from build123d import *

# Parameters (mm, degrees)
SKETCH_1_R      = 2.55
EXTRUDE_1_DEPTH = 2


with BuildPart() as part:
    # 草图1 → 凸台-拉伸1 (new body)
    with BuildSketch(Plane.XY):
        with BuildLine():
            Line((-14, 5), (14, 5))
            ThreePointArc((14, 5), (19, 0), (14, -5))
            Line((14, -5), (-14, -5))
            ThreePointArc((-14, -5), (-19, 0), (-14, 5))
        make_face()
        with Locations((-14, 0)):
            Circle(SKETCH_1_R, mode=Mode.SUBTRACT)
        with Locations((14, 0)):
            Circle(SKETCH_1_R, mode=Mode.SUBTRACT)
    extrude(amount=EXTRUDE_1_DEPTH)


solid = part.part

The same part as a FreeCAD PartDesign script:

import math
import FreeCAD as App
import Part
import Sketcher
from FreeCAD import Vector

doc = App.newDocument("Part")
body = doc.addObject("PartDesign::Body", "Body")

# Sketch on XY plane
sketch1 = body.newObject("Sketcher::SketchObject", "Sketch")
sketch1.AttachmentSupport = (doc.getObject("XY_Plane"), [""])
sketch1.MapMode = "FlatFace"
sketch1.addGeometry(Part.LineSegment(Vector(14, 5, 0), Vector(-14, 5, 0)), False)
sketch1.addGeometry(Part.ArcOfCircle(Part.Circle(Vector(-14, 0, 0), Vector(0, 0, 1), 5), math.radians(90), math.radians(270)), False)
sketch1.addGeometry(Part.LineSegment(Vector(-14, -5, 0), Vector(14, -5, 0)), False)
sketch1.addGeometry(Part.ArcOfCircle(Part.Circle(Vector(14, 0, 0), Vector(0, 0, 1), 5), math.radians(-90), math.radians(90)), False)
sketch1.addGeometry(Part.Circle(Vector(14, 0, 0), Vector(0, 0, 1), 2.5), False)
sketch1.addGeometry(Part.Circle(Vector(-14, 0, 0), Vector(0, 0, 1), 2.5), False)
sketch1.addConstraint(Sketcher.Constraint("Tangent", 0, 2, 1, 1))
sketch1.addConstraint(Sketcher.Constraint("Tangent", 1, 2, 2, 1))
sketch1.addConstraint(Sketcher.Constraint("Tangent", 2, 2, 3, 1))
sketch1.addConstraint(Sketcher.Constraint("Tangent", 3, 2, 0, 1))
sketch1.addConstraint(Sketcher.Constraint("Horizontal", 0))
sketch1.addConstraint(Sketcher.Constraint("Horizontal", 2))
sketch1.addConstraint(Sketcher.Constraint("Coincident", 4, 3, 3, 3))
sketch1.addConstraint(Sketcher.Constraint("Coincident", 5, 3, 1, 3))
sketch1.addConstraint(Sketcher.Constraint("Equal", 4, 5))
sketch1.addConstraint(Sketcher.Constraint("Symmetric", 1, 3, 3, 3, -1, 1))
sketch1.addConstraint(Sketcher.Constraint("Radius", 1, 5.0))
sketch1.addConstraint(Sketcher.Constraint("Diameter", 4, 5.1))
sketch1.addConstraint(Sketcher.Constraint("DistanceX", 0, 2, 0, 1, 28.0))
pad1 = body.newObject("PartDesign::Pad", "Pad")
pad1.Profile = sketch1
pad1.Length = 2

doc.recompute()
